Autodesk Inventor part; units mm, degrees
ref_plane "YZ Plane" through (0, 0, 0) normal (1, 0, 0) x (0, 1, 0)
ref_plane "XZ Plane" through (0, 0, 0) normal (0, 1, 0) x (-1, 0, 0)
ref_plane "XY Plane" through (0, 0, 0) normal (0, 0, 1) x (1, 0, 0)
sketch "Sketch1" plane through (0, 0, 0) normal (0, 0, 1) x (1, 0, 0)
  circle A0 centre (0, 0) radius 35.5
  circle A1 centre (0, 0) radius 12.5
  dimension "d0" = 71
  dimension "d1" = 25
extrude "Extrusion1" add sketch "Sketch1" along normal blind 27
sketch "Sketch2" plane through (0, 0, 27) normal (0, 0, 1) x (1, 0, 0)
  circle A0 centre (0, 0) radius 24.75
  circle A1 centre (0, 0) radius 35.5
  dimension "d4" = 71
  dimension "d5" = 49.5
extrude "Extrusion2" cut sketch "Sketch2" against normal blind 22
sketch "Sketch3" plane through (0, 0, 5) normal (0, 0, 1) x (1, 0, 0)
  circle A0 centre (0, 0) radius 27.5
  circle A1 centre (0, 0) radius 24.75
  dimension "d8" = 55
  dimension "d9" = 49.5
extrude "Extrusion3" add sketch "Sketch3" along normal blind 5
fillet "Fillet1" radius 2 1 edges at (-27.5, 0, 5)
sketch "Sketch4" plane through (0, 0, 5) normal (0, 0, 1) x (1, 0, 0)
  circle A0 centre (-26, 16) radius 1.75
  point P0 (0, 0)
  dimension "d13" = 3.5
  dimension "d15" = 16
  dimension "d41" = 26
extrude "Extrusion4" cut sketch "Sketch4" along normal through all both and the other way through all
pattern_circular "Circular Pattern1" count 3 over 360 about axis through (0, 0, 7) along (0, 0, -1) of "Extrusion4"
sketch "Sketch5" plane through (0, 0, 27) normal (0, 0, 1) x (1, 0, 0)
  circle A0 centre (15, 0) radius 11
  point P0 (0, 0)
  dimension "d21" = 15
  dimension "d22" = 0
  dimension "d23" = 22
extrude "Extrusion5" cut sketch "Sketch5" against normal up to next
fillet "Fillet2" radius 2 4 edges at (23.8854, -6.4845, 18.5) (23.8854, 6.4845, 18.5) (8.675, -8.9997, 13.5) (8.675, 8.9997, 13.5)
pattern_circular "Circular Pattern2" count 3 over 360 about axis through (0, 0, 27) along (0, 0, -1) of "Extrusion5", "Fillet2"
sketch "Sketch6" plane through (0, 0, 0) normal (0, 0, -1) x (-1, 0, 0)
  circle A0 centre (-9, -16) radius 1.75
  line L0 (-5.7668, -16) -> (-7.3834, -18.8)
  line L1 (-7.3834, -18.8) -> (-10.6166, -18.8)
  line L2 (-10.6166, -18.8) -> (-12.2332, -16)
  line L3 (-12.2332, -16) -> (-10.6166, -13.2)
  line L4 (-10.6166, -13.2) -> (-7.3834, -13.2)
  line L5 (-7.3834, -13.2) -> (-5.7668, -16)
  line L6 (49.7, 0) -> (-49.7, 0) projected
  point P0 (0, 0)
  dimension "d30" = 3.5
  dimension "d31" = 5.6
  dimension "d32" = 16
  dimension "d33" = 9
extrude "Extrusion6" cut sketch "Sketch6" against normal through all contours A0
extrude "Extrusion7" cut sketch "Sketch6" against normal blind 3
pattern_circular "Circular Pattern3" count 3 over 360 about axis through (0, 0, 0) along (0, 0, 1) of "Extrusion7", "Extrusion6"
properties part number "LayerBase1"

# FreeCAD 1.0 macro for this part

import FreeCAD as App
import Part
import Sketcher
from FreeCAD import Vector
Q = App.Units.Quantity


def edges_at(feature, points):
    """Names of the edges that pass closest to the given points."""
    edges = feature.Shape.Edges
    near = lambda p: min(range(len(edges)), key=lambda i: edges[i].distToShape(Part.Vertex(*p))[0])
    return sorted({f"Edge{near(p) + 1}" for p in points})


def add_polygon(sketch, points):
    """Adds a closed chain of lines whose ends are joined by coincident constraints."""
    first, n = sketch.GeometryCount, len(points)
    for a, b in zip(points, points[1:] + points[:1]):
        sketch.addGeometry(Part.LineSegment(App.Vector(*a, 0), App.Vector(*b, 0)), False)
    for i in range(n):
        sketch.addConstraint(Sketcher.Constraint("Coincident", first + i, 2, first + (i + 1) % n, 1))

doc = App.newDocument("Part")
body = doc.addObject("PartDesign::Body", "Body")

# Sketch on XY plane
sketch1 = body.newObject("Sketcher::SketchObject", "Sketch")
sketch1.AttachmentSupport = (doc.getObject("XY_Plane"), [""])
sketch1.MapMode = "FlatFace"
sketch1.addGeometry([
    Part.Circle(Vector(0, 0, 0), Vector(0, 0, 1), 35.5),
    Part.Circle(Vector(0, 0, 0), Vector(0, 0, 1), 12.5),
], False)
sketch1.addConstraint([
    Sketcher.Constraint("Coincident", 0, 3, -1, 1),
    Sketcher.Constraint("Coincident", 1, 3, -1, 1),
    Sketcher.Constraint("Diameter", 0, 71.0),
    Sketcher.Constraint("Diameter", 1, 25.0),
])
pad1 = body.newObject("PartDesign::Pad", "Pad")
pad1.Profile = sketch1
pad1.Length = 27

# Sketch on XY plane
sketch2 = body.newObject("Sketcher::SketchObject", "Sketch001")
sketch2.AttachmentSupport = (doc.getObject("XY_Plane"), [""])
sketch2.MapMode = "FlatFace"
sketch2.AttachmentOffset = App.Placement(Vector(0, 0, 27), App.Rotation())
sketch2.addGeometry([
    Part.Circle(Vector(0, 0, 0), Vector(0, 0, 1), 35.5),
    Part.Circle(Vector(0, 0, 0), Vector(0, 0, 1), 24.75),
], False)
sketch2.addConstraint([
    Sketcher.Constraint("Coincident", 0, 3, -1, 1),
    Sketcher.Constraint("Coincident", 1, 3, -1, 1),
    Sketcher.Constraint("Diameter", 0, 71.0),
    Sketcher.Constraint("Diameter", 1, 49.5),
])
pocket1 = body.newObject("PartDesign::Pocket", "Pocket")
pocket1.Profile = sketch2
pocket1.Length = 22

# Sketch on XY plane
sketch3 = body.newObject("Sketcher::SketchObject", "Sketch002")
sketch3.AttachmentSupport = (doc.getObject("XY_Plane"), [""])
sketch3.MapMode = "FlatFace"
sketch3.AttachmentOffset = App.Placement(Vector(0, 0, 5), App.Rotation())
sketch3.addGeometry([
    Part.Circle(Vector(0, 0, 0), Vector(0, 0, 1), 27.5),
    Part.Circle(Vector(0, 0, 0), Vector(0, 0, 1), 24.75),
], False)
sketch3.addConstraint([
    Sketcher.Constraint("Coincident", 0, 3, -1, 1),
    Sketcher.Constraint("Coincident", 1, 3, -1, 1),
    Sketcher.Constraint("Diameter", 0, 55.0),
    Sketcher.Constraint("Diameter", 1, 49.5),
])
pad2 = body.newObject("PartDesign::Pad", "Pad001")
pad2.Profile = sketch3
pad2.Length = 5
doc.recompute()

fillet = body.newObject("PartDesign::Fillet", "Fillet")
fillet.Base = (pad2, edges_at(pad2, [(-27.5, 0, 5)]))
fillet.Radius = 2

# Sketch on XY plane
sketch4 = body.newObject("Sketcher::SketchObject", "Sketch003")
sketch4.AttachmentSupport = (doc.getObject("XY_Plane"), [""])
sketch4.MapMode = "FlatFace"
sketch4.AttachmentOffset = App.Placement(Vector(0, 0, 5), App.Rotation())
sketch4.addGeometry(Part.Circle(Vector(-26, 16, 0), Vector(0, 0, 1), 1.75), False)
sketch4.addConstraint([
    Sketcher.Constraint("Diameter", 0, 3.5),
    Sketcher.Constraint("DistanceX", 0, 3, -1, 1, 26.0),
    Sketcher.Constraint("DistanceY", -1, 1, 0, 3, 16.0),
])
pocket2 = body.newObject("PartDesign::Pocket", "Pocket001")
pocket2.Profile = sketch4
pocket2.Type = "ThroughAll"
pocket2.Midplane = True
doc.recompute()

polarpattern = body.newObject("PartDesign::PolarPattern", "PolarPattern")
polarpattern.Originals = [pocket2]
polarpattern.Axis = (doc.getObject("Z_Axis"), [""])
polarpattern.Angle = 360
polarpattern.Occurrences = 3
body.Tip = polarpattern

# Sketch on XY plane
sketch5 = body.newObject("Sketcher::SketchObject", "Sketch004")
sketch5.AttachmentSupport = (doc.getObject("XY_Plane"), [""])
sketch5.MapMode = "FlatFace"
sketch5.AttachmentOffset = App.Placement(Vector(0, 0, 27), App.Rotation())
sketch5.addGeometry(Part.Circle(Vector(15, 0, 0), Vector(0, 0, 1), 11), False)
sketch5.addConstraint([
    Sketcher.Constraint("PointOnObject", 0, 3, -1),
    Sketcher.Constraint("Diameter", 0, 22.0),
    Sketcher.Constraint("DistanceX", -1, 1, 0, 3, 15.0),
])
pocket3 = body.newObject("PartDesign::Pocket", "Pocket002")
pocket3.Profile = sketch5
pocket3.Type = "UpToFirst"
doc.recompute()

fillet2 = body.newObject("PartDesign::Fillet", "Fillet001")
fillet2.Base = (pocket3, edges_at(pocket3, [
    (23.885, -6.484, 18.5),
    (23.885, 6.484, 18.5),
    (8.675, -9, 13.5),
    (8.675, 9, 13.5),
]))
fillet2.Radius = 2
doc.recompute()

polarpattern2 = body.newObject("PartDesign::PolarPattern", "PolarPattern001")
polarpattern2.Originals = [pocket3, fillet2]
polarpattern2.Axis = (doc.getObject("Z_Axis"), [""])
polarpattern2.Angle = 360
polarpattern2.Occurrences = 3
body.Tip = polarpattern2

# Sketch on XY plane
sketch6 = body.newObject("Sketcher::SketchObject", "Sketch005")
sketch6.AttachmentSupport = (doc.getObject("XY_Plane"), [""])
sketch6.MapMode = "FlatFace"
sketch6.addGeometry(Part.Circle(Vector(9, -16, 0), Vector(0, 0, 1), 1.75), False)
sketch6.addConstraint([
    Sketcher.Constraint("Diameter", 0, 3.5),
    Sketcher.Constraint("DistanceX", -1, 1, 0, 3, 9.0),
    Sketcher.Constraint("DistanceY", 0, 3, -1, 1, 16.0),
])
pocket4 = body.newObject("PartDesign::Pocket", "Pocket003")
pocket4.Profile = sketch6
pocket4.Type = "ThroughAll"
pocket4.Reversed = True

# Sketch on XY plane
sketch7 = body.newObject("Sketcher::SketchObject", "Sketch006")
sketch7.AttachmentSupport = (doc.getObject("XY_Plane"), [""])
sketch7.MapMode = "FlatFace"
add_polygon(sketch7, [(7.3834, -18.8), (5.7668, -16), (7.3834, -13.2), (10.6166, -13.2), (12.2332, -16), (10.6166, -18.8)])  # lines 0-5
sketch7.addGeometry(Part.Circle(Vector(9, -16, 0), Vector(0, 0, 1), 1.75), False)  # 6
sketch7.addConstraint([
    Sketcher.Constraint("Horizontal", 2),
    Sketcher.Constraint("Horizontal", 5),
    Sketcher.Constraint("Parallel", 0, 3),
    Sketcher.Constraint("Parallel", 1, 4),
    Sketcher.Constraint("Horizontal", 6, 3, 0, 2),
    Sketcher.Constraint("Horizontal", 0, 2, 3, 2),
    Sketcher.Constraint("Vertical", 2, 2, 4, 2),
    Sketcher.Constraint("Vertical", 1, 2, 5, 2),
    Sketcher.Constraint("Diameter", 6, 3.5),
    Sketcher.Constraint("DistanceX", -1, 1, 6, 3, 9.0),
    Sketcher.Constraint("DistanceY", 6, 3, -1, 1, 16.0),
    Sketcher.Constraint("DistanceY", 4, 2, 2, 2, 5.6),
    Sketcher.Constraint("Angle", 0, Q("120.0003 deg")),
    Sketcher.Constraint("DistanceX", 2, 1, 2, 2, 3.2332),
    Sketcher.Constraint("DistanceX", -1, 1, 0, 2, 5.7668),
])
pocket5 = body.newObject("PartDesign::Pocket", "Pocket004")
pocket5.Profile = sketch7
pocket5.Length = 3
pocket5.Reversed = True
doc.recompute()

polarpattern3 = body.newObject("PartDesign::PolarPattern", "PolarPattern002")
polarpattern3.Originals = [pocket5, pocket4]
polarpattern3.Axis = (doc.getObject("Z_Axis"), [""])
polarpattern3.Angle = 360
polarpattern3.Occurrences = 3
body.Tip = polarpattern3

doc.recompute()
